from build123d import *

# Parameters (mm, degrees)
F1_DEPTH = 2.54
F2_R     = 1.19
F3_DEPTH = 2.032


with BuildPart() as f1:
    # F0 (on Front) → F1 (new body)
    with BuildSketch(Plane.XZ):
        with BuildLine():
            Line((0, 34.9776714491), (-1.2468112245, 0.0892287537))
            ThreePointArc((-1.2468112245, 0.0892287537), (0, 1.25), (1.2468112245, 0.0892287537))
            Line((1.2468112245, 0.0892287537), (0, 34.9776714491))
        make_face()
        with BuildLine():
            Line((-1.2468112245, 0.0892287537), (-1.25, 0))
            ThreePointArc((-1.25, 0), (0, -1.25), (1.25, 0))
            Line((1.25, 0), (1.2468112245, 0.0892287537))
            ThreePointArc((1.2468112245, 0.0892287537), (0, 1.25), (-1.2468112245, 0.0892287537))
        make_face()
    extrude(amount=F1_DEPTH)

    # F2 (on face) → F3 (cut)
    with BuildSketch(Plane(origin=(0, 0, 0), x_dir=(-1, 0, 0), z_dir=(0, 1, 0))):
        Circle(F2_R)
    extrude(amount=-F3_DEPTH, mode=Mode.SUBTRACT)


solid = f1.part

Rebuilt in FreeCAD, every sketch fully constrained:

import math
import FreeCAD as App
import Part
import Sketcher
Q = App.Units.Quantity

doc = App.newDocument("Part")
body = doc.addObject("PartDesign::Body", "Body")

sketch1 = doc.addObject("Sketcher::SketchObject", "Sketch")
body.addObject(sketch1)
sketch1.AttachmentSupport = (doc.XZ_Plane, [""])
sketch1.MapMode = "FlatFace"
sketch1.addGeometry([
    Part.LineSegment(App.Vector(0, 34.98, 0), App.Vector(-1.25, 0.09, 0)),
    Part.LineSegment(App.Vector(-1.25, 0.09, 0), App.Vector(-1.25, 0, 0)),
    Part.ArcOfCircle(Part.Circle(App.Vector(0, 0, 0), App.Vector(0, 0, 1), 1.25), math.radians(180), math.radians(360)),
    Part.LineSegment(App.Vector(1.25, 0, 0), App.Vector(1.25, 0.09, 0)),
    Part.LineSegment(App.Vector(1.25, 0.09, 0), App.Vector(0, 34.98, 0)),
], False)
sketch1.addConstraint([
    Sketcher.Constraint("Coincident", 0, 2, 1, 1),
    Sketcher.Constraint("Coincident", 1, 2, 2, 1),
    Sketcher.Constraint("Coincident", 2, 2, 3, 1),
    Sketcher.Constraint("Coincident", 3, 2, 4, 1),
    Sketcher.Constraint("Coincident", 4, 2, 0, 1),
    Sketcher.Constraint("Coincident", 2, 3, -1, 1),
    Sketcher.Constraint("Symmetric", 0, 2, 3, 2, -2),
    Sketcher.Constraint("PointOnObject", 1, 2, -1),
    Sketcher.Constraint("PointOnObject", 2, 2, -1),
    Sketcher.Constraint("PointOnObject", 4, 2, -2),
    Sketcher.Constraint("Parallel", 0, 1),
    Sketcher.Constraint("Radius", 2, Q("1.25 mm")),
    Sketcher.Constraint("DistanceX", 0, 2, -1, 1, Q("1.246811 mm")),
    Sketcher.Constraint("DistanceY", -1, 1, 4, 2, Q("34.977671 mm")),
])
pad1 = doc.addObject("PartDesign::Pad", "Pad")
body.addObject(pad1)
pad1.Profile = sketch1
pad1.Length = Q("0.1 in")

sketch2 = doc.addObject("Sketcher::SketchObject", "Sketch001")
body.addObject(sketch2)
sketch2.AttachmentSupport = (doc.XZ_Plane, [""])
sketch2.MapMode = "FlatFace"
sketch2.addGeometry(Part.Circle(App.Vector(0, 0, 0), App.Vector(0, 0, 1), 1.2), False)
sketch2.addConstraint([
    Sketcher.Constraint("Coincident", 0, 3, -1, 1),
    Sketcher.Constraint("Diameter", 0, Q("2.38 mm")),
])
pocket1 = doc.addObject("PartDesign::Pocket", "Pocket")
body.addObject(pocket1)
pocket1.Profile = sketch2
pocket1.Length = Q("0.08 in")
pocket1.Reversed = True

doc.recompute()
